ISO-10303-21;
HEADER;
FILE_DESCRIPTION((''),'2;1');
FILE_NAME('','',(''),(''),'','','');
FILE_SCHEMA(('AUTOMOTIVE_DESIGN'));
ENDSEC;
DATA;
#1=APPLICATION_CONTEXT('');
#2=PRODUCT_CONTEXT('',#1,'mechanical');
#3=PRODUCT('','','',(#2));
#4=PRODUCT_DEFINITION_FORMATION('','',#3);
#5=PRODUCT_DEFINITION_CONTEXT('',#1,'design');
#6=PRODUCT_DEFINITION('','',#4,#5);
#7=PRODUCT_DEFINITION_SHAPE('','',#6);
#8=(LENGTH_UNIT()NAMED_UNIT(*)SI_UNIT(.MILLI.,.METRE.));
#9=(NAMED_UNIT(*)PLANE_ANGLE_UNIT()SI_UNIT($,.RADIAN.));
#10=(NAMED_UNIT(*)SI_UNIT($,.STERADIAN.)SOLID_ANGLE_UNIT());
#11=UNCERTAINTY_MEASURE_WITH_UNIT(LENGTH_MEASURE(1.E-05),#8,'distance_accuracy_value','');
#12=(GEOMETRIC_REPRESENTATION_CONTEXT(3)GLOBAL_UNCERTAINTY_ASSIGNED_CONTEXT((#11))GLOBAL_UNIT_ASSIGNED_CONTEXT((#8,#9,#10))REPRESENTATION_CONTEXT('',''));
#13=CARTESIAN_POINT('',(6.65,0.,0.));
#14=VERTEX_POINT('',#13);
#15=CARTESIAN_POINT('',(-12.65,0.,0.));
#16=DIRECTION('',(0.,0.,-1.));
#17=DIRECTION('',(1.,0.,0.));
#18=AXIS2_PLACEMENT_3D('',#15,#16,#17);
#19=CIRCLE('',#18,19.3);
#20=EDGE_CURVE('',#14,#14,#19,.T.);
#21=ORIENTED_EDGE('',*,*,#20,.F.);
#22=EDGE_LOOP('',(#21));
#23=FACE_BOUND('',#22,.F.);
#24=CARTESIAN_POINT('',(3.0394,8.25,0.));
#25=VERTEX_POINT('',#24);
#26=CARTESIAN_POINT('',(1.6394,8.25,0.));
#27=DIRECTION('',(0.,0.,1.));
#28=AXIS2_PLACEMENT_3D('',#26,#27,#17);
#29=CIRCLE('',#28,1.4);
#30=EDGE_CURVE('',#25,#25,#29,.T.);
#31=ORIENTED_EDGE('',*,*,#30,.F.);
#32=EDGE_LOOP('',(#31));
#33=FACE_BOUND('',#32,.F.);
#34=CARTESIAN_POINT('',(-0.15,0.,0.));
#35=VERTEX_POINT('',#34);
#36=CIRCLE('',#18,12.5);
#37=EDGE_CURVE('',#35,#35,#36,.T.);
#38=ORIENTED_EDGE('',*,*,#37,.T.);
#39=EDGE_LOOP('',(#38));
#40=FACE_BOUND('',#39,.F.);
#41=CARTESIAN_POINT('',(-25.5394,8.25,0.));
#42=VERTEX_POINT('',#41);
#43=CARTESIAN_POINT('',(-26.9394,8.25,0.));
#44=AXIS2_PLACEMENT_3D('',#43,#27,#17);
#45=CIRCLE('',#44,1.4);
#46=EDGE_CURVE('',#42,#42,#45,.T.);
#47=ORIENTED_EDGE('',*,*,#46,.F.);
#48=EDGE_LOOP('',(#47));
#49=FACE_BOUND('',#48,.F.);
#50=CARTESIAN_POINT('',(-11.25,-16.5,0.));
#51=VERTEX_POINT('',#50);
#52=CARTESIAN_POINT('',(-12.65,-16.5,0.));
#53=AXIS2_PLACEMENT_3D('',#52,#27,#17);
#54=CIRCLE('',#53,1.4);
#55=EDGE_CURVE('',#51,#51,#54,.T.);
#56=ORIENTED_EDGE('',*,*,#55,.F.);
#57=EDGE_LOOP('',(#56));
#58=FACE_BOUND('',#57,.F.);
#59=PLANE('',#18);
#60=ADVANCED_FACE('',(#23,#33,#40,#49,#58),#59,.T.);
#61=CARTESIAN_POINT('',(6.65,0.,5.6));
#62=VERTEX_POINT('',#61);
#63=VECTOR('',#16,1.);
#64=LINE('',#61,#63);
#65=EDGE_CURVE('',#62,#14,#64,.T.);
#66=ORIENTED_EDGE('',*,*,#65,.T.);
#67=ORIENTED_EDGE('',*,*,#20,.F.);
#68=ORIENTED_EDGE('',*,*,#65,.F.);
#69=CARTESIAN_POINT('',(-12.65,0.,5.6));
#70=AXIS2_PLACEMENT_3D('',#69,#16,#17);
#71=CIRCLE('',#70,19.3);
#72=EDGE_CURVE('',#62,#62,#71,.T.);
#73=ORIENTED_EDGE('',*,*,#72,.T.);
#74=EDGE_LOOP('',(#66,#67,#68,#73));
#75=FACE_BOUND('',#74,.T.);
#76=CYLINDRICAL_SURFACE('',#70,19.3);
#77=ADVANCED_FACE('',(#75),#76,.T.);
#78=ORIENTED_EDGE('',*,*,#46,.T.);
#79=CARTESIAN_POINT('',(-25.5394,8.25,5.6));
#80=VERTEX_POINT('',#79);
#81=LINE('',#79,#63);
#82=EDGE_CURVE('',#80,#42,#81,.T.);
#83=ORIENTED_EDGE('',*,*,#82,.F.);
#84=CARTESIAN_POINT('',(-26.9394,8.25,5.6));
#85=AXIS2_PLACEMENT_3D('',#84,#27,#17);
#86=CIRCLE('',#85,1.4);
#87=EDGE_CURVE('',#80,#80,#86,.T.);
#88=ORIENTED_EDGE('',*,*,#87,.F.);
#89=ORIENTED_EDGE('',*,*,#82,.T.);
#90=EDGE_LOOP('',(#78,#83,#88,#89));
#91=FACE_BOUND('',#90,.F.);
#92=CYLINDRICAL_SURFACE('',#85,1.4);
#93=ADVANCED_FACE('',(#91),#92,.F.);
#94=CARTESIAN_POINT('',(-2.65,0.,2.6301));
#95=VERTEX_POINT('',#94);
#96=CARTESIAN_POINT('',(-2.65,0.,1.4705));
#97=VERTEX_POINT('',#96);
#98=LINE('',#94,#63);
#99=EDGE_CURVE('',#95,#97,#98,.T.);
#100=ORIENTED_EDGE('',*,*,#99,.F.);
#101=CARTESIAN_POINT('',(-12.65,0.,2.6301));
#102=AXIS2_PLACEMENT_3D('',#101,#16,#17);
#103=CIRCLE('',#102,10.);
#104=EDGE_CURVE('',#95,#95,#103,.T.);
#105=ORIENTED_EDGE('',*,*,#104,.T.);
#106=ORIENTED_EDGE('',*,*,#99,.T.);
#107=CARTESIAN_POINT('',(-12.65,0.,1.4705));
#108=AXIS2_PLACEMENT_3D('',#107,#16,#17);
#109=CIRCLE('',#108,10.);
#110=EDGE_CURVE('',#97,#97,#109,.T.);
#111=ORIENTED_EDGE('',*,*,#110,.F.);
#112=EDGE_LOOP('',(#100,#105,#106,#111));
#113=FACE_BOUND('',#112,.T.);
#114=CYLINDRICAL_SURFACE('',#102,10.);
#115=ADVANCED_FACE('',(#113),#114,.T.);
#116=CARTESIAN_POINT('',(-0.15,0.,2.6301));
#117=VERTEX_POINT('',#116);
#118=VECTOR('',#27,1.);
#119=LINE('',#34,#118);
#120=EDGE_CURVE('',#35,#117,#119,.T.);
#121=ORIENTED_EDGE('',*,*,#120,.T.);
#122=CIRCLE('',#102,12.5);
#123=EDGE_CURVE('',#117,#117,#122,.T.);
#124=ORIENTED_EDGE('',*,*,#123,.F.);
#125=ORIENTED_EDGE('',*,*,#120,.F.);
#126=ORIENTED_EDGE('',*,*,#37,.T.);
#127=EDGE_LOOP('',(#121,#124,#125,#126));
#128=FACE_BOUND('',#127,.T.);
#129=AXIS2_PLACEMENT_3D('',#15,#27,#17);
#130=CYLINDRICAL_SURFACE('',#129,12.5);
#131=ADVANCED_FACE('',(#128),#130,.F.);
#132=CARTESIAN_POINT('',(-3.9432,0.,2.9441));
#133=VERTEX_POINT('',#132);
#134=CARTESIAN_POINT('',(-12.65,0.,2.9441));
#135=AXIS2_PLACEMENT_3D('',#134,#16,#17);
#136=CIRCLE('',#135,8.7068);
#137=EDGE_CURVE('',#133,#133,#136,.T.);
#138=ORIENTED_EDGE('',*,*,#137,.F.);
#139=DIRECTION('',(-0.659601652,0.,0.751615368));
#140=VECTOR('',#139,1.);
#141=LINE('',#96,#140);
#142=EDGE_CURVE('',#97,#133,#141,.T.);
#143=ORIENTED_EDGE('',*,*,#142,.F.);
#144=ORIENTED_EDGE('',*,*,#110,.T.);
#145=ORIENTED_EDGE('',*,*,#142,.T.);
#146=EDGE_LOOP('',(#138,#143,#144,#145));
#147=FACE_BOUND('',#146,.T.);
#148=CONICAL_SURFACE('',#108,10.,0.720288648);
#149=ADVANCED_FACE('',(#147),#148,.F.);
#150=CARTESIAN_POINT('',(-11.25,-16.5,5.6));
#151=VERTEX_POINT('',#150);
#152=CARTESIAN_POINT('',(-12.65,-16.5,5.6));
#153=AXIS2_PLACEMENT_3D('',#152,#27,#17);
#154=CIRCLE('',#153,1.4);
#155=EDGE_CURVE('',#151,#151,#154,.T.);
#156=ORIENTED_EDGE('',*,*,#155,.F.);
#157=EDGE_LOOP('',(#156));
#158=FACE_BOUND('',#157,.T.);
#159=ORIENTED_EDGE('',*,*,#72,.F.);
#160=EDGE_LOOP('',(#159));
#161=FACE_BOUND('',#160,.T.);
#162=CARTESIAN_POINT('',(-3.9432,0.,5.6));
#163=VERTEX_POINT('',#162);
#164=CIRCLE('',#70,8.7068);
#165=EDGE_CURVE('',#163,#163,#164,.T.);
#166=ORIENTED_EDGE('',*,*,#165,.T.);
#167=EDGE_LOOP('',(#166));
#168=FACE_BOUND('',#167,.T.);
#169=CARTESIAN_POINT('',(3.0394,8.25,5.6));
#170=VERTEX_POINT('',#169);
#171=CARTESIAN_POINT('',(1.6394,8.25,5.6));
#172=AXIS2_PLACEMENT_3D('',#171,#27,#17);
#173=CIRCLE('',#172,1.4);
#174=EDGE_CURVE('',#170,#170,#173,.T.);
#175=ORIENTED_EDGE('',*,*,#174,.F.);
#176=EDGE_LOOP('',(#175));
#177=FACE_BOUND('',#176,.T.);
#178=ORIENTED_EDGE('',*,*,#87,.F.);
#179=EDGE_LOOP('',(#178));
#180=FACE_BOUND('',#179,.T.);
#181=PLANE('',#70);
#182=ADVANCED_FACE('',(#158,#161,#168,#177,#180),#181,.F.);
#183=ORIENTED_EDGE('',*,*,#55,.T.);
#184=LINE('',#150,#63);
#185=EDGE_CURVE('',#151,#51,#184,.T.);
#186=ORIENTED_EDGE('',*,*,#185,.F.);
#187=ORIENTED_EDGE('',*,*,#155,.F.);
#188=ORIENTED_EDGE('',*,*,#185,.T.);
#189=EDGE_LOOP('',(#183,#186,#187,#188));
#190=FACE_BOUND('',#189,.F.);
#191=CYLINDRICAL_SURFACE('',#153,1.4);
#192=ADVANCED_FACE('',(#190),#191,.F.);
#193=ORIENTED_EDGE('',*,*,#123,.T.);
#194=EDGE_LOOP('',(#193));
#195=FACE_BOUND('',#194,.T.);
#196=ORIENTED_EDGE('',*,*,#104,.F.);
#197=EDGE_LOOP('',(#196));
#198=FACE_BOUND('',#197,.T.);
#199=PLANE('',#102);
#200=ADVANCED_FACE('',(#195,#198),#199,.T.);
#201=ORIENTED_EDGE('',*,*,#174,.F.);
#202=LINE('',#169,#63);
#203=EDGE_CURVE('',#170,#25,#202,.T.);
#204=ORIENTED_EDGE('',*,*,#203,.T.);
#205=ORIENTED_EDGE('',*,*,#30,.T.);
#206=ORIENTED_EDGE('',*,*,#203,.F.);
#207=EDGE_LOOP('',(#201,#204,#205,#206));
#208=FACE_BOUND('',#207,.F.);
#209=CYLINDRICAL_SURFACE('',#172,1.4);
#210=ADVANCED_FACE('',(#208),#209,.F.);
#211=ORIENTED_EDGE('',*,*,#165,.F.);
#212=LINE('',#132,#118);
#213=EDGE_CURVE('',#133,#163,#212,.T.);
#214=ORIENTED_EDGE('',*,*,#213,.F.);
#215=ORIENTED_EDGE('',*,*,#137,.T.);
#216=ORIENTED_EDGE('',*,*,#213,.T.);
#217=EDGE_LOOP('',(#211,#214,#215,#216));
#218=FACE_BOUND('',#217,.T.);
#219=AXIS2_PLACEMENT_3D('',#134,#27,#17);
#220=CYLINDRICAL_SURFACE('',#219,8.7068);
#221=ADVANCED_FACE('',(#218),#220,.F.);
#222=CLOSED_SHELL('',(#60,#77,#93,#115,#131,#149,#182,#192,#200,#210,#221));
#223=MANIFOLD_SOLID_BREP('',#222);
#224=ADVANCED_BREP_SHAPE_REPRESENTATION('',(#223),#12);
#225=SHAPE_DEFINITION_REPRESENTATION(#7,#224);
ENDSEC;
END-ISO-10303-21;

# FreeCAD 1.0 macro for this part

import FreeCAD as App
import Part
import Sketcher
from FreeCAD import Vector
Q = App.Units.Quantity


def add_polygon(sketch, points):
    """Adds a closed chain of lines whose ends are joined by coincident constraints."""
    first, n = sketch.GeometryCount, len(points)
    for a, b in zip(points, points[1:] + points[:1]):
        sketch.addGeometry(Part.LineSegment(App.Vector(*a, 0), App.Vector(*b, 0)), False)
    for i in range(n):
        sketch.addConstraint(Sketcher.Constraint("Coincident", first + i, 2, first + (i + 1) % n, 1))

doc = App.newDocument("Part")
body = doc.addObject("PartDesign::Body", "Body")

sketch1 = body.newObject("Sketcher::SketchObject", "Sketch")
sketch1.AttachmentSupport = (doc.getObject("XZ_Plane"), [""])
sketch1.MapMode = "FlatFace"
add_polygon(sketch1, [(-0.1, 0), (-0.1, 2.6), (-2.6, 2.6), (-2.6, 1.5), (-3.9, 2.9), (-3.9, 5.6), (6.7, 5.6), (6.7, 0)])
sketch1.addGeometry(Part.LineSegment(Vector(-12.7, 5.6, 0), Vector(-12.7, 0, 0)), True)
sketch1.addConstraint(Sketcher.Constraint("Vertical", 0))
sketch1.addConstraint(Sketcher.Constraint("Horizontal", 1))
sketch1.addConstraint(Sketcher.Constraint("Vertical", 2))
sketch1.addConstraint(Sketcher.Constraint("Vertical", 4))
sketch1.addConstraint(Sketcher.Constraint("Horizontal", 5))
sketch1.addConstraint(Sketcher.Constraint("Vertical", 6))
sketch1.addConstraint(Sketcher.Constraint("Horizontal", 7))
sketch1.addConstraint(Sketcher.Constraint("Vertical", 8))
sketch1.addConstraint(Sketcher.Constraint("PointOnObject", 6, 2, -1))
sketch1.addConstraint(Sketcher.Constraint("PointOnObject", 8, 2, -1))
sketch1.addConstraint(Sketcher.Constraint("Horizontal", 5, 2, 8, 1))
sketch1.addConstraint(Sketcher.Constraint("DistanceX", 1, 2, 1, 1, 2.5))
sketch1.addConstraint(Sketcher.Constraint("DistanceX", 7, 2, 7, 1, 6.8))
sketch1.addConstraint(Sketcher.Constraint("DistanceY", 6, 2, 6, 1, 5.6))
sketch1.addConstraint(Sketcher.Constraint("DistanceX", 8, 1, 1, 2, 10.0))
sketch1.addConstraint(Sketcher.Constraint("DistanceY", 0, 1, 0, 2, 2.63))
sketch1.addConstraint(Sketcher.Constraint("Angle", 3, Q("131.2695 deg")))
sketch1.addConstraint(Sketcher.Constraint("DistanceY", 4, 1, 4, 2, 2.656))
sketch1.addConstraint(Sketcher.Constraint("DistanceX", 0, 2, -1, 1, 0.15))
sketch1.addConstraint(Sketcher.Constraint("DistanceX", 5, 1, 5, 2, 10.5932))
revolution = body.newObject("PartDesign::Revolution", "Revolution")
revolution.Profile = sketch1
revolution.ReferenceAxis = (sketch1, ["Axis0"])
revolution.Angle = 360

sketch2 = body.newObject("Sketcher::SketchObject", "Sketch001")
sketch2.AttachmentSupport = (doc.getObject("XY_Plane"), [""])
sketch2.MapMode = "FlatFace"
sketch2.AttachmentOffset = App.Placement(Vector(0, 0, 5.6), App.Rotation())
sketch2.addGeometry(Part.Circle(Vector(1.6, 8.2, 0), Vector(0, 0, 1), 1.4), False)
sketch2.addGeometry(Part.Circle(Vector(-26.9, 8.2, 0), Vector(0, 0, 1), 1.4), False)
sketch2.addGeometry(Part.Circle(Vector(-12.7, -16.5, 0), Vector(0, 0, 1), 1.4), False)
sketch2.addConstraint(Sketcher.Constraint("Equal", 0, 1))
sketch2.addConstraint(Sketcher.Constraint("Equal", 1, 2))
sketch2.addConstraint(Sketcher.Constraint("Horizontal", 0, 3, 1, 3))
sketch2.addConstraint(Sketcher.Constraint("Diameter", 0, 2.8))
sketch2.addConstraint(Sketcher.Constraint("DistanceY", 2, 3, -1, 1, 16.5))
sketch2.addConstraint(Sketcher.Constraint("DistanceY", -1, 1, 0, 3, 8.25))
sketch2.addConstraint(Sketcher.Constraint("DistanceX", 2, 3, -1, 1, 12.65))
sketch2.addConstraint(Sketcher.Constraint("DistanceX", -1, 1, 0, 3, 1.6394))
sketch2.addConstraint(Sketcher.Constraint("DistanceX", 1, 3, -1, 1, 26.9394))
pocket1 = body.newObject("PartDesign::Pocket", "Pocket")
pocket1.Profile = sketch2
pocket1.Length = 10

doc.recompute()
